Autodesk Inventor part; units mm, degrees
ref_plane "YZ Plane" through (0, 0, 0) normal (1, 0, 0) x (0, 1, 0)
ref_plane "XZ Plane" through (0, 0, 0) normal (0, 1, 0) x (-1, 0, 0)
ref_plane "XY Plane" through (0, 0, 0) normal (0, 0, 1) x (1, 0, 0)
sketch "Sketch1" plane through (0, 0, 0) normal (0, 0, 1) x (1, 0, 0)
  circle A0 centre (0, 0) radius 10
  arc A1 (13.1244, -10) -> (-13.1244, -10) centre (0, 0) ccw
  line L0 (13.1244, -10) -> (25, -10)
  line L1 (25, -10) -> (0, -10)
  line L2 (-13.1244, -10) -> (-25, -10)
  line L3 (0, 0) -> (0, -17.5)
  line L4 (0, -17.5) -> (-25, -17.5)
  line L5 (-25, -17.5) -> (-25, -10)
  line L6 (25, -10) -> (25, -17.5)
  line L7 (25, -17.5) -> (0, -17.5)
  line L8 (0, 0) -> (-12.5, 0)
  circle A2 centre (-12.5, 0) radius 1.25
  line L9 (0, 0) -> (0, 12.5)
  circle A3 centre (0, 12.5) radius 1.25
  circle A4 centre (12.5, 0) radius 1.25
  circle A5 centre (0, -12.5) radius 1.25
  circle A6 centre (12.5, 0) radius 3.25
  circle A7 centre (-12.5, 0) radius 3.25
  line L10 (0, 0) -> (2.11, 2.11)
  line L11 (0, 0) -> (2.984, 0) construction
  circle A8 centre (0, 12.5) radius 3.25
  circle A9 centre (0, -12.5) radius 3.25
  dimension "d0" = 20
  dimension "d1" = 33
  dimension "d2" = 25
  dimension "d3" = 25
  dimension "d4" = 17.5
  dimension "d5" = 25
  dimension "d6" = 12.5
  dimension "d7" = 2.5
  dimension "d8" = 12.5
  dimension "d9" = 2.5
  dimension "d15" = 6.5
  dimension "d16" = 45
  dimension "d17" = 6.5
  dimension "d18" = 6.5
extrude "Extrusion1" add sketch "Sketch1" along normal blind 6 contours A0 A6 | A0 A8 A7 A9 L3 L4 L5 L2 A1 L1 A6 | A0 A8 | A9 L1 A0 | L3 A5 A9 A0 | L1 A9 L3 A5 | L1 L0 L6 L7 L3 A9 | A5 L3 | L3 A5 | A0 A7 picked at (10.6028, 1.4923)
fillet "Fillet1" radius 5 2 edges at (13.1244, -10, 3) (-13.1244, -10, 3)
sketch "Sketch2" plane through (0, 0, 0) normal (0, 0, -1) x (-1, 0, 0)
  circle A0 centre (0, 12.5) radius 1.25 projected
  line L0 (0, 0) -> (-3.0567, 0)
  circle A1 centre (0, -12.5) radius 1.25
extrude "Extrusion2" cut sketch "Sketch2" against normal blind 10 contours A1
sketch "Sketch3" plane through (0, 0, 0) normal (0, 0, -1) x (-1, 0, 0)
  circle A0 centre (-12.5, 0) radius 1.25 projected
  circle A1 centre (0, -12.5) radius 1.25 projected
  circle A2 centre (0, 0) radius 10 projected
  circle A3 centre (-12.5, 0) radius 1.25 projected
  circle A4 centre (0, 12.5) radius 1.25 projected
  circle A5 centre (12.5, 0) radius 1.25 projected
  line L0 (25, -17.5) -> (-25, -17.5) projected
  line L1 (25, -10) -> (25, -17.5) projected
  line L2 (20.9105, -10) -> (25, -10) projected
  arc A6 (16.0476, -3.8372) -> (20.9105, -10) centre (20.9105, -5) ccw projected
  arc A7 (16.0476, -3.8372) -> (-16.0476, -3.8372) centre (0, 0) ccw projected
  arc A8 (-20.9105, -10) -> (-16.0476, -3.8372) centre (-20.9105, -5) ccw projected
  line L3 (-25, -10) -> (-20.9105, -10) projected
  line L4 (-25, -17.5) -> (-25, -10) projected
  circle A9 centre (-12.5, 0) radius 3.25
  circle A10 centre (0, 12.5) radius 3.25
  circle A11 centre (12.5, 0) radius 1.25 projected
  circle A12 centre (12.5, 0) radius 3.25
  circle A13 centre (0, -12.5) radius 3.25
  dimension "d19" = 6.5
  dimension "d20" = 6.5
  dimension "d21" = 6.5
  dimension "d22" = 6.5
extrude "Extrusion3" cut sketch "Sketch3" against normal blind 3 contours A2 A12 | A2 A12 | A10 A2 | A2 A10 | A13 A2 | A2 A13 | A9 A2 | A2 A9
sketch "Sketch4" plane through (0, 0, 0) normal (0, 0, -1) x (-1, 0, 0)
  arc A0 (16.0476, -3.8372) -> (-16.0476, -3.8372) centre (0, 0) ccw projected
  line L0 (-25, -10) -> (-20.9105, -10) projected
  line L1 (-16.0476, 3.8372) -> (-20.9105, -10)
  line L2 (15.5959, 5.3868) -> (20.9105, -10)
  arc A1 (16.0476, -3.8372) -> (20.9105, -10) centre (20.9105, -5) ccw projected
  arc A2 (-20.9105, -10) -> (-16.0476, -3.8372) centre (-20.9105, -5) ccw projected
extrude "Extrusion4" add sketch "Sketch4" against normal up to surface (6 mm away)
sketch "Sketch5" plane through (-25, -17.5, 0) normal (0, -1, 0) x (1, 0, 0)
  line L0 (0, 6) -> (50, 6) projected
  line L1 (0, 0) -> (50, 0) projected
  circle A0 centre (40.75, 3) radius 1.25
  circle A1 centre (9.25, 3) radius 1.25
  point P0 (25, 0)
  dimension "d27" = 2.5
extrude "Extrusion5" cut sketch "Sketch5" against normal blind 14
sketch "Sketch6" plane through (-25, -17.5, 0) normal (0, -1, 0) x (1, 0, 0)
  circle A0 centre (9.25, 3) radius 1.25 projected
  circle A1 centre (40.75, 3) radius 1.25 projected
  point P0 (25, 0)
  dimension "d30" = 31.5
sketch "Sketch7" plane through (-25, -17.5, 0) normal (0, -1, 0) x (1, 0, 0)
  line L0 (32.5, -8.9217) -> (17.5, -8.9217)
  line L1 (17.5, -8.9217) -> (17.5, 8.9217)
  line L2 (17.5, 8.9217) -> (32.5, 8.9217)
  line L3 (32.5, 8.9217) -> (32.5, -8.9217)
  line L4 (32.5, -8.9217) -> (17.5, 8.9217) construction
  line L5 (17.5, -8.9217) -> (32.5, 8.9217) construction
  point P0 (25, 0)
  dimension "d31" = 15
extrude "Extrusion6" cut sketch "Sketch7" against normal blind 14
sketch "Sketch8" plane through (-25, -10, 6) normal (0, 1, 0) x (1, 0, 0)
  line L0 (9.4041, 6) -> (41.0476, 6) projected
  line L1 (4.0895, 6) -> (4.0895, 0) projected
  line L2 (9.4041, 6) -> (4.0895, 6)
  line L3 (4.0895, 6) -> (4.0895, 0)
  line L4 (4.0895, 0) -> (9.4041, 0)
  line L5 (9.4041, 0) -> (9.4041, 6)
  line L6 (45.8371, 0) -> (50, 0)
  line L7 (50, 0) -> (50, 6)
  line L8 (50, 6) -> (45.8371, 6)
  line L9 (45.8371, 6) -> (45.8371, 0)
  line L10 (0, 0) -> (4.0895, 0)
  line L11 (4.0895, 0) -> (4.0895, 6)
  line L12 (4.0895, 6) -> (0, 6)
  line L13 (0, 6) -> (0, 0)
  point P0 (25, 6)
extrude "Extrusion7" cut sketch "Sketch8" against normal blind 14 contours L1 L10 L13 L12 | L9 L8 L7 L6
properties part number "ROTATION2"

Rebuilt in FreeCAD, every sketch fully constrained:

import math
import FreeCAD as App
import Part
import Sketcher

V = App.Vector


def edges_at(feature, points):
    """Names of the edges that pass closest to the given points."""
    edges = feature.Shape.Edges
    near = lambda p: min(range(len(edges)), key=lambda i: edges[i].distToShape(Part.Vertex(*p))[0])
    return sorted({f"Edge{near(p) + 1}" for p in points})


def add_polygon(sketch, points):
    """Adds a closed chain of lines whose ends are joined by coincident constraints."""
    first, n = sketch.GeometryCount, len(points)
    for a, b in zip(points, points[1:] + points[:1]):
        sketch.addGeometry(Part.LineSegment(App.Vector(*a, 0), App.Vector(*b, 0)), False)
    for i in range(n):
        sketch.addConstraint(Sketcher.Constraint("Coincident", first + i, 2, first + (i + 1) % n, 1))

doc = App.newDocument("Part")
body = doc.addObject("PartDesign::Body", "Body")

# Sketch on XY plane
sketch1 = doc.addObject("Sketcher::SketchObject", "Sketch")
body.addObject(sketch1)
sketch1.AttachmentSupport = (doc.XY_Plane, [""])
sketch1.MapMode = "FlatFace"
sketch1.addGeometry([
    Part.LineSegment(V(-25, -17.5, 0), V(25, -17.5, 0)),  # 0
    Part.LineSegment(V(25, -17.5, 0), V(25, -10, 0)),  # 1
    Part.LineSegment(V(25, -10, 0), V(13.1244, -10, 0)),  # 2
    Part.ArcOfCircle(Part.Circle(V(0, 0, 0), V(0, 0, 1), 16.499996), math.radians(-37.305211), math.radians(217.305211)),  # 3
    Part.LineSegment(V(-13.1244, -10, 0), V(-25, -10, 0)),  # 4
    Part.LineSegment(V(-25, -10, 0), V(-25, -17.5, 0)),  # 5
    Part.ArcOfCircle(Part.Circle(V(0, 0, 0), V(0, 0, 1), 10), math.radians(90), math.radians(180)),  # 6
    Part.ArcOfCircle(Part.Circle(V(0, 0, 0), V(0, 0, 1), 10), math.radians(180), math.radians(450)),  # 7
    Part.Circle(V(12.5, 0, 0), V(0, 0, 1), 1.25),  # 8
    Part.Circle(V(0, 12.5, 0), V(0, 0, 1), 1.25),  # 9
    Part.Circle(V(-12.5, 0, 0), V(0, 0, 1), 1.25),  # 10
], False)
sketch1.addConstraint([
    Sketcher.Constraint("Coincident", 0, 2, 1, 1),
    Sketcher.Constraint("Coincident", 1, 2, 2, 1),
    Sketcher.Constraint("Coincident", 2, 2, 3, 1),
    Sketcher.Constraint("Coincident", 3, 2, 4, 1),
    Sketcher.Constraint("Coincident", 4, 2, 5, 1),
    Sketcher.Constraint("Coincident", 5, 2, 0, 1),
    Sketcher.Constraint("Tangent", 6, 1, 7, 2),
    Sketcher.Constraint("Coincident", 7, 1, 6, 2),
    Sketcher.Constraint("Horizontal", 0),
    Sketcher.Constraint("Vertical", 1),
    Sketcher.Constraint("Horizontal", 2),
    Sketcher.Constraint("Horizontal", 4),
    Sketcher.Constraint("Vertical", 5),
    Sketcher.Constraint("Coincident", 3, 3, -1, 1),
    Sketcher.Constraint("Coincident", 6, 3, -1, 1),
    Sketcher.Constraint("Equal", 8, 9),
    Sketcher.Constraint("Equal", 9, 10),
    Sketcher.Constraint("Symmetric", 8, 3, 10, 3, -1, 1),
    Sketcher.Constraint("Symmetric", 1, 2, 4, 2, -2),
    Sketcher.Constraint("PointOnObject", 8, 3, -1),
    Sketcher.Constraint("PointOnObject", 9, 3, -2),
    Sketcher.Constraint("PointOnObject", 6, 1, -2),
    Sketcher.Constraint("PointOnObject", 7, 1, -1),
    Sketcher.Constraint("Radius", 6, 10.0),
    Sketcher.Constraint("Diameter", 8, 2.5),
    Sketcher.Constraint("Radius", 3, 16.5),
    Sketcher.Constraint("DistanceX", -1, 1, 0, 2, 25.0),
    Sketcher.Constraint("DistanceX", 10, 3, 8, 3, 25.0),
    Sketcher.Constraint("DistanceY", -1, 1, 9, 3, 12.5),
    Sketcher.Constraint("DistanceY", 0, 2, -1, 1, 17.5),
    Sketcher.Constraint("DistanceY", 1, 1, 1, 2, 7.5),
])
pad1 = doc.addObject("PartDesign::Pad", "Pad")
body.addObject(pad1)
pad1.Profile = sketch1
pad1.Length = 6
doc.recompute()

fillet = doc.addObject("PartDesign::Fillet", "Fillet")
body.addObject(fillet)
fillet.Base = (pad1, edges_at(pad1, [(13.124, -10, 3), (-13.124, -10, 3)]))
fillet.Radius = 5

# Sketch on XY plane
sketch2 = doc.addObject("Sketcher::SketchObject", "Sketch001")
body.addObject(sketch2)
sketch2.AttachmentSupport = (doc.XY_Plane, [""])
sketch2.MapMode = "FlatFace"
sketch2.addGeometry(Part.Circle(V(0, -12.5, 0), V(0, 0, 1), 1.25), False)
sketch2.addConstraint([
    Sketcher.Constraint("PointOnObject", 0, 3, -2),
    Sketcher.Constraint("Diameter", 0, 2.5),
    Sketcher.Constraint("DistanceY", 0, 3, -1, 1, 12.5),
])
pocket1 = doc.addObject("PartDesign::Pocket", "Pocket")
body.addObject(pocket1)
pocket1.Profile = sketch2
pocket1.Length = 10
pocket1.Reversed = True

# Sketch on XY plane
sketch3 = doc.addObject("Sketcher::SketchObject", "Sketch002")
body.addObject(sketch3)
sketch3.AttachmentSupport = (doc.XY_Plane, [""])
sketch3.MapMode = "FlatFace"
sketch3.addGeometry([
    Part.Circle(V(-12.5, 0, 0), V(0, 0, 1), 3.25),  # 0
    Part.Circle(V(-12.5, 0, 0), V(0, 0, 1), 1.25),  # 1
    Part.Circle(V(0, 12.5, 0), V(0, 0, 1), 3.25),  # 2
    Part.Circle(V(0, 12.5, 0), V(0, 0, 1), 1.25),  # 3
    Part.Circle(V(0, -12.5, 0), V(0, 0, 1), 3.25),  # 4
    Part.Circle(V(0, -12.5, 0), V(0, 0, 1), 1.25),  # 5
    Part.Circle(V(12.5, 0, 0), V(0, 0, 1), 3.25),  # 6
    Part.Circle(V(12.5, 0, 0), V(0, 0, 1), 1.25),  # 7
], False)
sketch3.addConstraint([
    Sketcher.Constraint("Coincident", 1, 3, 0, 3),
    Sketcher.Constraint("Coincident", 3, 3, 2, 3),
    Sketcher.Constraint("Coincident", 5, 3, 4, 3),
    Sketcher.Constraint("Coincident", 7, 3, 6, 3),
    Sketcher.Constraint("Equal", 0, 2),
    Sketcher.Constraint("Equal", 1, 3),
    Sketcher.Constraint("Equal", 2, 4),
    Sketcher.Constraint("Equal", 3, 5),
    Sketcher.Constraint("Equal", 4, 6),
    Sketcher.Constraint("Equal", 5, 7),
    Sketcher.Constraint("Symmetric", 2, 3, 4, 3, -1, 1),
    Sketcher.Constraint("Symmetric", 0, 3, 6, 3, -1, 1),
    Sketcher.Constraint("PointOnObject", 0, 3, -1),
    Sketcher.Constraint("PointOnObject", 2, 3, -2),
    Sketcher.Constraint("Diameter", 0, 6.5),
    Sketcher.Constraint("Diameter", 1, 2.5),
    Sketcher.Constraint("DistanceY", 4, 3, 2, 3, 25.0),
    Sketcher.Constraint("DistanceX", 0, 3, 6, 3, 25.0),
])
pocket2 = doc.addObject("PartDesign::Pocket", "Pocket001")
body.addObject(pocket2)
pocket2.Profile = sketch3
pocket2.Length = 3
pocket2.Reversed = True

# Sketch on XY plane
sketch4 = doc.addObject("Sketcher::SketchObject", "Sketch003")
body.addObject(sketch4)
sketch4.AttachmentSupport = (doc.XY_Plane, [""])
sketch4.MapMode = "FlatFace"
sketch4.addGeometry([
    Part.ArcOfCircle(Part.Circle(V(0, 0, 0), V(0, 0, 1), 16.499987), math.radians(-13.447705), math.radians(13.447705)),  # 0
    Part.LineSegment(V(16.0476, 3.8372, 0), V(20.9105, -10, 0)),  # 1
    Part.ArcOfCircle(Part.Circle(V(20.9105, -5, 0), V(0, 0, 1), 5), math.radians(166.552136), math.radians(270)),  # 2
    Part.ArcOfCircle(Part.Circle(V(0, 0, 0), V(0, 0, 1), 16.499987), math.radians(160.945166), math.radians(193.447705)),  # 3
    Part.ArcOfCircle(Part.Circle(V(-20.9105, -5, 0), V(0, 0, 1), 4.99999), math.radians(-90), math.radians(13.447864)),  # 4
    Part.LineSegment(V(-20.9105, -10, 0), V(-15.5959, 5.3868, 0)),  # 5
], False)
sketch4.addConstraint([
    Sketcher.Constraint("Coincident", 0, 2, 1, 1),
    Sketcher.Constraint("Coincident", 1, 2, 2, 2),
    Sketcher.Constraint("Tangent", 2, 1, 0, 1),
    Sketcher.Constraint("Tangent", 3, 2, 4, 2),
    Sketcher.Constraint("Coincident", 4, 1, 5, 1),
    Sketcher.Constraint("Tangent", 5, 2, 3, 1),
    Sketcher.Constraint("Coincident", 0, 3, -1, 1),
    Sketcher.Constraint("Coincident", 3, 3, -1, 1),
    Sketcher.Constraint("Equal", 0, 3),
    Sketcher.Constraint("Equal", 2, 4),
    Sketcher.Constraint("Symmetric", 1, 2, 4, 1, -2),
    Sketcher.Constraint("Vertical", 2, 3, 1, 2),
    Sketcher.Constraint("Vertical", 0, 2, 2, 1),
    Sketcher.Constraint("Radius", 2, 5.0),
    Sketcher.Constraint("Radius", 0, 16.5),
    Sketcher.Constraint("DistanceY", 2, 3, -1, 1, 5.0),
])
pad2 = doc.addObject("PartDesign::Pad", "Pad001")
body.addObject(pad2)
pad2.Profile = sketch4
pad2.Length = 6

# Sketch on XZ plane
sketch5 = doc.addObject("Sketcher::SketchObject", "Sketch004")
body.addObject(sketch5)
sketch5.AttachmentSupport = (doc.XZ_Plane, [""])
sketch5.MapMode = "FlatFace"
sketch5.AttachmentOffset = App.Placement(V(0, 0, 17.5), App.Rotation())
sketch5.addGeometry([
    Part.Circle(V(15.75, 3, 0), V(0, 0, 1), 1.25),
    Part.Circle(V(-15.75, 3, 0), V(0, 0, 1), 1.25),
], False)
sketch5.addConstraint([
    Sketcher.Constraint("Equal", 0, 1),
    Sketcher.Constraint("Symmetric", 0, 3, 1, 3, -2),
    Sketcher.Constraint("Diameter", 0, 2.5),
    Sketcher.Constraint("DistanceY", -1, 1, 0, 3, 3.0),
    Sketcher.Constraint("DistanceX", 1, 3, 0, 3, 31.5),
])
pocket3 = doc.addObject("PartDesign::Pocket", "Pocket002")
body.addObject(pocket3)
pocket3.Profile = sketch5
pocket3.Length = 14

# Sketch on XZ plane
sketch6 = doc.addObject("Sketcher::SketchObject", "Sketch005")
body.addObject(sketch6)
sketch6.AttachmentSupport = (doc.XZ_Plane, [""])
sketch6.MapMode = "FlatFace"
sketch6.AttachmentOffset = App.Placement(V(0, 0, 17.5), App.Rotation())
add_polygon(sketch6, [(-7.5, -8.9217), (7.5, -8.9217), (7.5, 8.9217), (-7.5, 8.9217)])  # lines 0-3
sketch6.addConstraint([
    Sketcher.Constraint("Horizontal", 0),
    Sketcher.Constraint("Vertical", 1),
    Sketcher.Constraint("Horizontal", 2),
    Sketcher.Constraint("Vertical", 3),
    Sketcher.Constraint("Symmetric", 0, 2, 2, 2, -1, 1),
    Sketcher.Constraint("DistanceX", 0, 1, 0, 2, 15.0),
    Sketcher.Constraint("DistanceY", 1, 1, 1, 2, 17.8434),
])
pocket4 = doc.addObject("PartDesign::Pocket", "Pocket003")
body.addObject(pocket4)
pocket4.Profile = sketch6
pocket4.Length = 14

# Sketch on XZ plane
sketch7 = doc.addObject("Sketcher::SketchObject", "Sketch006")
body.addObject(sketch7)
sketch7.AttachmentSupport = (doc.XZ_Plane, [""])
sketch7.MapMode = "FlatFace"
sketch7.AttachmentOffset = App.Placement(V(0, 0, 10), App.Rotation())
add_polygon(sketch7, [(-20.9105, 6), (-20.9105, 0), (-25, 0), (-25, 6)])  # lines 0-3
add_polygon(sketch7, [(20.8371, 0), (20.8371, 6), (25, 6), (25, 0)])  # lines 4-7
sketch7.addConstraint([
    Sketcher.Constraint("Vertical", 0),
    Sketcher.Constraint("Horizontal", 1),
    Sketcher.Constraint("Vertical", 2),
    Sketcher.Constraint("Horizontal", 3),
    Sketcher.Constraint("Vertical", 4),
    Sketcher.Constraint("Horizontal", 5),
    Sketcher.Constraint("Vertical", 6),
    Sketcher.Constraint("Horizontal", 7),
    Sketcher.Constraint("Symmetric", 1, 2, 6, 2, -1, 1),
    Sketcher.Constraint("PointOnObject", 0, 2, -1),
    Sketcher.Constraint("Horizontal", 3, 2, 4, 2),
    Sketcher.Constraint("DistanceY", 0, 2, 0, 1, 6.0),
    Sketcher.Constraint("DistanceX", 1, 2, -1, 1, 25.0),
    Sketcher.Constraint("DistanceX", 5, 1, 5, 2, 4.163),
    Sketcher.Constraint("DistanceX", 1, 2, 1, 1, 4.0895),
])
pocket5 = doc.addObject("PartDesign::Pocket", "Pocket004")
body.addObject(pocket5)
pocket5.Profile = sketch7
pocket5.Length = 14
pocket5.Reversed = True

doc.recompute()
